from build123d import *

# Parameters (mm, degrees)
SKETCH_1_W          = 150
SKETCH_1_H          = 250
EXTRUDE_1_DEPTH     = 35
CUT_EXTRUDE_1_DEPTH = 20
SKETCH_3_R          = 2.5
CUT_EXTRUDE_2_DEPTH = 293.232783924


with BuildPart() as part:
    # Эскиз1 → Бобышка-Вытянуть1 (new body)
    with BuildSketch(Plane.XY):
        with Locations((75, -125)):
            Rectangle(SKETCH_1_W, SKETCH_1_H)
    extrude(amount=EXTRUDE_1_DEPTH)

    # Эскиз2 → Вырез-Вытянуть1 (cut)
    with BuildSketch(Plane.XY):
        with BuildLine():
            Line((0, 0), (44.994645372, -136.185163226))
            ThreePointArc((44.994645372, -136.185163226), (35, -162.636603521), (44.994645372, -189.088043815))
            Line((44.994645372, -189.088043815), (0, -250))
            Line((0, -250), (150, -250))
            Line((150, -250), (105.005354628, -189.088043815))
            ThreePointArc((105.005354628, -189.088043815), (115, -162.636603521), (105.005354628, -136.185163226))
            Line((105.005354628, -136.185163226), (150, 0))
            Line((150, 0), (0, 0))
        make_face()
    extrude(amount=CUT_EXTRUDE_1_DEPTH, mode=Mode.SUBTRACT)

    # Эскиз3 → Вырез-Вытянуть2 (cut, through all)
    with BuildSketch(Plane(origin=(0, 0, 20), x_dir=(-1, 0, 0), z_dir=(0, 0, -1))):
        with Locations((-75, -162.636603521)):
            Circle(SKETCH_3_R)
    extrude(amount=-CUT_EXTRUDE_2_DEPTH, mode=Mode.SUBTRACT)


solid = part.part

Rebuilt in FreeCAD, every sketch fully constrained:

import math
import FreeCAD as App
import Part
import Sketcher

V = App.Vector

doc = App.newDocument("Part")
body = doc.addObject("PartDesign::Body", "Body")

# Sketch on XY plane
sketch1 = doc.addObject("Sketcher::SketchObject", "Sketch")
body.addObject(sketch1)
sketch1.AttachmentSupport = (doc.XY_Plane, [""])
sketch1.MapMode = "FlatFace"
sketch1.addGeometry([
    Part.LineSegment(V(0, 0, 0), V(0, -250, 0)),
    Part.LineSegment(V(0, -250, 0), V(150, -250, 0)),
    Part.LineSegment(V(150, -250, 0), V(150, 0, 0)),
    Part.LineSegment(V(150, 0, 0), V(0, 0, 0)),
], False)
sketch1.addConstraint([
    Sketcher.Constraint("Coincident", 0, 2, 1, 1),
    Sketcher.Constraint("Coincident", 1, 2, 2, 1),
    Sketcher.Constraint("Coincident", 2, 2, 3, 1),
    Sketcher.Constraint("Coincident", 3, 2, 0, 1),
    Sketcher.Constraint("Vertical", 0),
    Sketcher.Constraint("Horizontal", 1),
    Sketcher.Constraint("Vertical", 2),
    Sketcher.Constraint("Horizontal", 3),
    Sketcher.Constraint("Coincident", 3, 2, -1, 1),
    Sketcher.Constraint("DistanceX", 1, 1, 1, 2, 150.0),
    Sketcher.Constraint("DistanceY", 0, 2, 0, 1, 250.0),
])
pad1 = doc.addObject("PartDesign::Pad", "Pad")
body.addObject(pad1)
pad1.Profile = sketch1
pad1.Length = 35

# Sketch on XY plane
sketch2 = doc.addObject("Sketcher::SketchObject", "Sketch001")
body.addObject(sketch2)
sketch2.AttachmentSupport = (doc.XY_Plane, [""])
sketch2.MapMode = "FlatFace"
sketch2.addGeometry([
    Part.LineSegment(V(0, 0, 0), V(45, -136, 0)),  # 0
    Part.ArcOfCircle(Part.Circle(V(75, -163, 0), V(0, 0, 1), 40), math.radians(139), math.radians(221)),  # 1
    Part.LineSegment(V(45, -189, 0), V(0, -250, 0)),  # 2
    Part.LineSegment(V(0, -250, 0), V(150, -250, 0)),  # 3
    Part.LineSegment(V(150, -250, 0), V(105, -189, 0)),  # 4
    Part.ArcOfCircle(Part.Circle(V(75, -163, 0), V(0, 0, 1), 40), math.radians(-41), math.radians(41)),  # 5
    Part.LineSegment(V(105, -136, 0), V(150, 0, 0)),  # 6
    Part.LineSegment(V(150, 0, 0), V(0, 0, 0)),  # 7
], False)
sketch2.addConstraint([
    Sketcher.Constraint("Coincident", 0, 2, 1, 1),
    Sketcher.Constraint("Coincident", 1, 2, 2, 1),
    Sketcher.Constraint("Coincident", 2, 2, 3, 1),
    Sketcher.Constraint("Coincident", 3, 2, 4, 1),
    Sketcher.Constraint("Coincident", 4, 2, 5, 1),
    Sketcher.Constraint("Coincident", 5, 2, 6, 1),
    Sketcher.Constraint("Coincident", 6, 2, 7, 1),
    Sketcher.Constraint("Coincident", 7, 2, 0, 1),
    Sketcher.Constraint("Horizontal", 3),
    Sketcher.Constraint("Horizontal", 7),
    Sketcher.Constraint("Coincident", 7, 2, -1, 1),
    Sketcher.Constraint("Coincident", 5, 3, 1, 3),
    Sketcher.Constraint("Equal", 1, 5),
    Sketcher.Constraint("PointOnObject", 2, 2, -2),
    Sketcher.Constraint("Horizontal", 1, 2, 4, 2),
    Sketcher.Constraint("Horizontal", 0, 2, 5, 2),
    Sketcher.Constraint("Vertical", 0, 2, 1, 2),
    Sketcher.Constraint("Vertical", 3, 2, 6, 2),
    Sketcher.Constraint("Equal", 2, 4),
    Sketcher.Constraint("Radius", 1, 40.0),
    Sketcher.Constraint("DistanceX", 3, 1, 3, 2, 150.0),
    Sketcher.Constraint("DistanceY", 2, 2, -1, 1, 250.0),
    Sketcher.Constraint("Distance", 0, 143.425649),
    Sketcher.Constraint("Distance", 2, 75.72836),
])
pocket1 = doc.addObject("PartDesign::Pocket", "Pocket")
body.addObject(pocket1)
pocket1.Profile = sketch2
pocket1.Length = 20
pocket1.Reversed = True

# Sketch on XY plane
sketch3 = doc.addObject("Sketcher::SketchObject", "Sketch002")
body.addObject(sketch3)
sketch3.AttachmentSupport = (doc.XY_Plane, [""])
sketch3.MapMode = "FlatFace"
sketch3.AttachmentOffset = App.Placement(V(0, 0, 20), App.Rotation())
sketch3.addGeometry(Part.Circle(V(75, -162.6, 0), V(0, 0, 1), 2.5), False)
sketch3.addConstraint([
    Sketcher.Constraint("Diameter", 0, 5.0),
    Sketcher.Constraint("DistanceX", -1, 1, 0, 3, 75.0),
    Sketcher.Constraint("DistanceY", 0, 3, -1, 1, 162.636604),
])
pocket2 = doc.addObject("PartDesign::Pocket", "Pocket001")
body.addObject(pocket2)
pocket2.Profile = sketch3
pocket2.Type = "ThroughAll"
pocket2.Reversed = True

doc.recompute()
